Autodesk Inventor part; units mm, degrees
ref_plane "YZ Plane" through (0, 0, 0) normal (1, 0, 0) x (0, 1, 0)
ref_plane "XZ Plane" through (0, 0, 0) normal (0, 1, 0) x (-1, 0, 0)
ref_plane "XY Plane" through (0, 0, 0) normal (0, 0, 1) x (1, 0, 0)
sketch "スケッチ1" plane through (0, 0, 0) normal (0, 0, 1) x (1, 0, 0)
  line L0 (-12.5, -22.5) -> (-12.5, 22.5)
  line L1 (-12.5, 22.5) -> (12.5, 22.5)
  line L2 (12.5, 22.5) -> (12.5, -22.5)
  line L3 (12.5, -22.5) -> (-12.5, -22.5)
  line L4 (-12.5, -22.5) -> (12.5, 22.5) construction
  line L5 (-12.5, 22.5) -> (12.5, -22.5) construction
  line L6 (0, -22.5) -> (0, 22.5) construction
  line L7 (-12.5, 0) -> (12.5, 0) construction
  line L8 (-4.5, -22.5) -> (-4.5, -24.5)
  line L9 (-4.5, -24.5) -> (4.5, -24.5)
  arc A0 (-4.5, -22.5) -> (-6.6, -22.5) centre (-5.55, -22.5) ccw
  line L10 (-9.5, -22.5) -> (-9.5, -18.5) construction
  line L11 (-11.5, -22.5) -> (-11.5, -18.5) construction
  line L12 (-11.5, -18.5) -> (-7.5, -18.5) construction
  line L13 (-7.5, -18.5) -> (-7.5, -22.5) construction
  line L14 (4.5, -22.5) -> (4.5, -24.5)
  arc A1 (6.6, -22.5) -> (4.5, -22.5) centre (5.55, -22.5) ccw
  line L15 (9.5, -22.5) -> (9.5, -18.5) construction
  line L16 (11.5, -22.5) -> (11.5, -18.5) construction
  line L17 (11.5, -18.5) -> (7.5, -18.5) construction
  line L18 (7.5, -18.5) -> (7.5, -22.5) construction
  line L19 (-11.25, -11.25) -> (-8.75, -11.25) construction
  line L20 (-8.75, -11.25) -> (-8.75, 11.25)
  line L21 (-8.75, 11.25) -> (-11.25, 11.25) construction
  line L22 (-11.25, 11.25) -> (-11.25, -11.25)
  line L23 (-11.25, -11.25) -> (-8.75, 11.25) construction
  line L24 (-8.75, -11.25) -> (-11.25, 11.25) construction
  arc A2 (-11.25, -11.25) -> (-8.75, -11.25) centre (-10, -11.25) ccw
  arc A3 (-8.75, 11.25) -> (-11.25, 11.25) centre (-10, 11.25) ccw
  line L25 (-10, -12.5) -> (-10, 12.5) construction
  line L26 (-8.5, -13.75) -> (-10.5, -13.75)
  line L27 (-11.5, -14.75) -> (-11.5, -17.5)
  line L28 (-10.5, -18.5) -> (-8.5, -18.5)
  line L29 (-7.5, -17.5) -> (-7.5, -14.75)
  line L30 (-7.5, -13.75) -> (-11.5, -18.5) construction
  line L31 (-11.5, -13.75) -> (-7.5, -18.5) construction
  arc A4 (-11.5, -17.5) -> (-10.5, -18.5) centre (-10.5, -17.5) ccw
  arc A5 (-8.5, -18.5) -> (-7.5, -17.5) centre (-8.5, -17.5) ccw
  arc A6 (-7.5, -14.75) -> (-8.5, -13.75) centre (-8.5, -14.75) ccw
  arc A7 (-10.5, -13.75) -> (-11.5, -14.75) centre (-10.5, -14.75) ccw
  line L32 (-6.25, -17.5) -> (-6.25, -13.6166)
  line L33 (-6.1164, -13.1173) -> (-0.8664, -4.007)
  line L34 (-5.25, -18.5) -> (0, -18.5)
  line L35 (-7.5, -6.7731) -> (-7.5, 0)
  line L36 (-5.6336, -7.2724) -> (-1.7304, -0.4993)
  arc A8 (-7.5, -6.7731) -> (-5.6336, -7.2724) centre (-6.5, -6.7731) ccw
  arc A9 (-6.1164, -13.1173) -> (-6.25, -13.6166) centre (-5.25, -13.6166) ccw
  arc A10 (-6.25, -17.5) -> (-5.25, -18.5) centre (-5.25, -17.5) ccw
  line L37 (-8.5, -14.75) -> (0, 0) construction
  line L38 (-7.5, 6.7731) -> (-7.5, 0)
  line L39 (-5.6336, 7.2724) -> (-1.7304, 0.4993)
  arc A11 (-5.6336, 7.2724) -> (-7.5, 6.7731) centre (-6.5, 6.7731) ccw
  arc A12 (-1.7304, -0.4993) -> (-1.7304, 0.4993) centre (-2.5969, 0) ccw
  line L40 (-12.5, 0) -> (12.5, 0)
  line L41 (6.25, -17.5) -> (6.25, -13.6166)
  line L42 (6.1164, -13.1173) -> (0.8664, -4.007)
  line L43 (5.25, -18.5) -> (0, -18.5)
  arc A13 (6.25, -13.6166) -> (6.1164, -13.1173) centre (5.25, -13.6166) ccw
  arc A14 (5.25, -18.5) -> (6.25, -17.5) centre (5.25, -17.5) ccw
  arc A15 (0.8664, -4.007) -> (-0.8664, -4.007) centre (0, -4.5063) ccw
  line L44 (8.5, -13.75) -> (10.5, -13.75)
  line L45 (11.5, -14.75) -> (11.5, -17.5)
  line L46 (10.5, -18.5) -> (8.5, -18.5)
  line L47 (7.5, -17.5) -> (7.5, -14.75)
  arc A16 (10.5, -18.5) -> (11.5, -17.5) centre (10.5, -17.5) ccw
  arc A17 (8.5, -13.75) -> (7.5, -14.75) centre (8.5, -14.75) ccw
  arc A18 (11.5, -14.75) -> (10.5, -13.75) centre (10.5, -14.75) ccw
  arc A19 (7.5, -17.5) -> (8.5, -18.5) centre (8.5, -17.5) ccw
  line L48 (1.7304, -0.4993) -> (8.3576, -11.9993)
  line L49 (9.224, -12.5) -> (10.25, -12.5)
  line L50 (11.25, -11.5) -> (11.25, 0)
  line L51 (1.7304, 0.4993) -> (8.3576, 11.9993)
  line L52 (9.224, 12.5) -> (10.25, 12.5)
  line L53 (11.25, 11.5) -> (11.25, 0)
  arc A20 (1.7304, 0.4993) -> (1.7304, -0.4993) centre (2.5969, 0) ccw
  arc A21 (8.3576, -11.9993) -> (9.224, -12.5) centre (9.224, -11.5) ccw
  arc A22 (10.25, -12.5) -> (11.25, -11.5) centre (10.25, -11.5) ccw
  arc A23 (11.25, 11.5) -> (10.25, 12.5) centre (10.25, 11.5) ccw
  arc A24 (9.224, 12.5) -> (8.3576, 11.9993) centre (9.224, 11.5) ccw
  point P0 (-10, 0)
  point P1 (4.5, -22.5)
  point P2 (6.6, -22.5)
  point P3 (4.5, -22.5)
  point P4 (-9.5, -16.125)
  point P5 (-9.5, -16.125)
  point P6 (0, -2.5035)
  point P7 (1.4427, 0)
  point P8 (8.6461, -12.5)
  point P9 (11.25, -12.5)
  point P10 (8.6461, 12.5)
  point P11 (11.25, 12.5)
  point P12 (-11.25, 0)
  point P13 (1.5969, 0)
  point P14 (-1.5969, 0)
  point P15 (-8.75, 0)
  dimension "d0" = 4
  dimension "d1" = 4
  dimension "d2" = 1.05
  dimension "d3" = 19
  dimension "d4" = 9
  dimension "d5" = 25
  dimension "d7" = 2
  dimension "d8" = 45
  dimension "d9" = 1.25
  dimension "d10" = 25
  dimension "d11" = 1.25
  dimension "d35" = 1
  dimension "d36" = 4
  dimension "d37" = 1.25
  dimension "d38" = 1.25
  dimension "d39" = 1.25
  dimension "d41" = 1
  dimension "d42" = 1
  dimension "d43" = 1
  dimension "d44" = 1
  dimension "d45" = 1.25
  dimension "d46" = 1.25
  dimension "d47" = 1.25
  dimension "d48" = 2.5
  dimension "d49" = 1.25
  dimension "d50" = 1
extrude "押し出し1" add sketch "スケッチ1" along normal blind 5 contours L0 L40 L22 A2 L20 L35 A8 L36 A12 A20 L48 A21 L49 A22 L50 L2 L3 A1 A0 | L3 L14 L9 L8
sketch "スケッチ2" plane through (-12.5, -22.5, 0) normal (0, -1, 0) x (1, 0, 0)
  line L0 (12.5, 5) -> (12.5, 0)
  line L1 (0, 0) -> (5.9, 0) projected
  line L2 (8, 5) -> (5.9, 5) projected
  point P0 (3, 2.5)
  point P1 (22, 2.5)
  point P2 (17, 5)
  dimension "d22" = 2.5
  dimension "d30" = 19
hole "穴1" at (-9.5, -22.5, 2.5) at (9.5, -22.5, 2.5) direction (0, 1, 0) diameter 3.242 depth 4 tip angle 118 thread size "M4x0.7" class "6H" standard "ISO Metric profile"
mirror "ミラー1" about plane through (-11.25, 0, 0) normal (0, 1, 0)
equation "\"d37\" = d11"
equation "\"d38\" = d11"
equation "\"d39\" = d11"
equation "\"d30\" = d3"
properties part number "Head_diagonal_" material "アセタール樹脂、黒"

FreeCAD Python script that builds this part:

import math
import FreeCAD as App
import Part
import Sketcher
from FreeCAD import Vector

doc = App.newDocument("Part")
body = doc.addObject("PartDesign::Body", "Body")

# Sketch on XY plane
sketch1 = body.newObject("Sketcher::SketchObject", "Sketch")
sketch1.AttachmentSupport = (doc.getObject("XY_Plane"), [""])
sketch1.MapMode = "FlatFace"
sketch1.addGeometry(Part.LineSegment(Vector(-12.5, 0, 0), Vector(-12.5, -22.5, 0)), False)
sketch1.addGeometry(Part.LineSegment(Vector(-12.5, -22.5, 0), Vector(-6.6, -22.5, 0)), False)
sketch1.addGeometry(Part.ArcOfCircle(Part.Circle(Vector(-5.5, -22.5, 0), Vector(0, 0, 1), 1), math.radians(0), math.radians(180)), False)
sketch1.addGeometry(Part.LineSegment(Vector(-4.5, -22.5, 0), Vector(-4.5, -24.5, 0)), False)
sketch1.addGeometry(Part.LineSegment(Vector(-4.5, -24.5, 0), Vector(4.5, -24.5, 0)), False)
sketch1.addGeometry(Part.LineSegment(Vector(4.5, -24.5, 0), Vector(4.5, -22.5, 0)), False)
sketch1.addGeometry(Part.ArcOfCircle(Part.Circle(Vector(5.5, -22.5, 0), Vector(0, 0, 1), 1), math.radians(0), math.radians(180)), False)
sketch1.addGeometry(Part.LineSegment(Vector(6.6, -22.5, 0), Vector(12.5, -22.5, 0)), False)
sketch1.addGeometry(Part.LineSegment(Vector(12.5, -22.5, 0), Vector(12.5, 0, 0)), False)
sketch1.addGeometry(Part.LineSegment(Vector(12.5, 0, 0), Vector(11.2, 0, 0)), False)
sketch1.addGeometry(Part.LineSegment(Vector(11.2, 0, 0), Vector(11.2, -11.5, 0)), False)
sketch1.addGeometry(Part.ArcOfCircle(Part.Circle(Vector(10.2, -11.5, 0), Vector(0, 0, 1), 1), math.radians(-90), math.radians(0)), False)
sketch1.addGeometry(Part.LineSegment(Vector(10.2, -12.5, 0), Vector(9.2, -12.5, 0)), False)
sketch1.addGeometry(Part.ArcOfCircle(Part.Circle(Vector(9.2, -11.5, 0), Vector(0, 0, 1), 1), math.radians(-150), math.radians(-90)), False)
sketch1.addGeometry(Part.LineSegment(Vector(8.4, -12, 0), Vector(1.7, -0.5, 0)), False)
sketch1.addGeometry(Part.ArcOfCircle(Part.Circle(Vector(2.6, 0, 0), Vector(0, 0, 1), 1), math.radians(180), math.radians(210)), False)
sketch1.addGeometry(Part.LineSegment(Vector(1.6, 0, 0), Vector(-1.6, 0, 0)), False)
sketch1.addGeometry(Part.ArcOfCircle(Part.Circle(Vector(-2.6, 0, 0), Vector(0, 0, 1), 1), math.radians(-30), math.radians(0)), False)
sketch1.addGeometry(Part.LineSegment(Vector(-1.7, -0.5, 0), Vector(-5.6, -7.3, 0)), False)
sketch1.addGeometry(Part.ArcOfCircle(Part.Circle(Vector(-6.5, -6.8, 0), Vector(0, 0, 1), 1), math.radians(180), math.radians(330)), False)
sketch1.addGeometry(Part.LineSegment(Vector(-7.5, -6.8, 0), Vector(-7.5, 0, 0)), False)
sketch1.addGeometry(Part.LineSegment(Vector(-7.5, 0, 0), Vector(-8.8, 0, 0)), False)
sketch1.addGeometry(Part.LineSegment(Vector(-8.8, 0, 0), Vector(-8.8, -11.2, 0)), False)
sketch1.addGeometry(Part.ArcOfCircle(Part.Circle(Vector(-10, -11.2, 0), Vector(0, 0, 1), 1.2), math.radians(180), math.radians(360)), False)
sketch1.addGeometry(Part.LineSegment(Vector(-11.2, -11.2, 0), Vector(-11.2, 0, 0)), False)
sketch1.addGeometry(Part.LineSegment(Vector(-11.2, 0, 0), Vector(-12.5, 0, 0)), False)
sketch1.addGeometry(Part.LineSegment(Vector(-10.5, -13.8, 0), Vector(-8.5, -13.8, 0)), False)
sketch1.addGeometry(Part.ArcOfCircle(Part.Circle(Vector(-8.5, -14.8, 0), Vector(0, 0, 1), 1), math.radians(0), math.radians(90)), False)
sketch1.addGeometry(Part.LineSegment(Vector(-7.5, -14.8, 0), Vector(-7.5, -17.5, 0)), False)
sketch1.addGeometry(Part.ArcOfCircle(Part.Circle(Vector(-8.5, -17.5, 0), Vector(0, 0, 1), 1), math.radians(-90), math.radians(0)), False)
sketch1.addGeometry(Part.LineSegment(Vector(-8.5, -18.5, 0), Vector(-10.5, -18.5, 0)), False)
sketch1.addGeometry(Part.ArcOfCircle(Part.Circle(Vector(-10.5, -17.5, 0), Vector(0, 0, 1), 1), math.radians(180), math.radians(270)), False)
sketch1.addGeometry(Part.LineSegment(Vector(-11.5, -17.5, 0), Vector(-11.5, -14.8, 0)), False)
sketch1.addGeometry(Part.ArcOfCircle(Part.Circle(Vector(-10.5, -14.8, 0), Vector(0, 0, 1), 1), math.radians(90), math.radians(180)), False)
sketch1.addGeometry(Part.ArcOfCircle(Part.Circle(Vector(8.5, -14.8, 0), Vector(0, 0, 1), 1), math.radians(90), math.radians(180)), False)
sketch1.addGeometry(Part.LineSegment(Vector(8.5, -13.8, 0), Vector(10.5, -13.8, 0)), False)
sketch1.addGeometry(Part.ArcOfCircle(Part.Circle(Vector(10.5, -14.8, 0), Vector(0, 0, 1), 1), math.radians(0), math.radians(90)), False)
sketch1.addGeometry(Part.LineSegment(Vector(11.5, -14.8, 0), Vector(11.5, -17.5, 0)), False)
sketch1.addGeometry(Part.ArcOfCircle(Part.Circle(Vector(10.5, -17.5, 0), Vector(0, 0, 1), 1), math.radians(-90), math.radians(0)), False)
sketch1.addGeometry(Part.LineSegment(Vector(10.5, -18.5, 0), Vector(8.5, -18.5, 0)), False)
sketch1.addGeometry(Part.ArcOfCircle(Part.Circle(Vector(8.5, -17.5, 0), Vector(0, 0, 1), 1), math.radians(180), math.radians(270)), False)
sketch1.addGeometry(Part.LineSegment(Vector(7.5, -17.5, 0), Vector(7.5, -14.8, 0)), False)
sketch1.addGeometry(Part.ArcOfCircle(Part.Circle(Vector(-5.2, -17.5, 0), Vector(0, 0, 1), 1), math.radians(180), math.radians(270)), False)
sketch1.addGeometry(Part.LineSegment(Vector(-6.2, -17.5, 0), Vector(-6.2, -13.6, 0)), False)
sketch1.addGeometry(Part.ArcOfCircle(Part.Circle(Vector(-5.2, -13.6, 0), Vector(0, 0, 1), 1), math.radians(150), math.radians(180)), False)
sketch1.addGeometry(Part.LineSegment(Vector(-6.1, -13.1, 0), Vector(-0.9, -4, 0)), False)
sketch1.addGeometry(Part.ArcOfCircle(Part.Circle(Vector(0, -4.5, 0), Vector(0, 0, 1), 1), math.radians(30), math.radians(150)), False)
sketch1.addGeometry(Part.LineSegment(Vector(0.9, -4, 0), Vector(6.1, -13.1, 0)), False)
sketch1.addGeometry(Part.ArcOfCircle(Part.Circle(Vector(5.2, -13.6, 0), Vector(0, 0, 1), 1), math.radians(0), math.radians(30)), False)
sketch1.addGeometry(Part.LineSegment(Vector(6.2, -13.6, 0), Vector(6.2, -17.5, 0)), False)
sketch1.addGeometry(Part.ArcOfCircle(Part.Circle(Vector(5.2, -17.5, 0), Vector(0, 0, 1), 1), math.radians(-90), math.radians(0)), False)
sketch1.addGeometry(Part.LineSegment(Vector(5.2, -18.5, 0), Vector(-5.2, -18.5, 0)), False)
sketch1.addConstraint(Sketcher.Constraint("Coincident", 0, 2, 1, 1))
sketch1.addConstraint(Sketcher.Constraint("Coincident", 1, 2, 2, 2))
sketch1.addConstraint(Sketcher.Constraint("Tangent", 2, 1, 3, 1))
sketch1.addConstraint(Sketcher.Constraint("Coincident", 3, 2, 4, 1))
sketch1.addConstraint(Sketcher.Constraint("Coincident", 4, 2, 5, 1))
sketch1.addConstraint(Sketcher.Constraint("Tangent", 5, 2, 6, 2))
sketch1.addConstraint(Sketcher.Constraint("Coincident", 6, 1, 7, 1))
sketch1.addConstraint(Sketcher.Constraint("Coincident", 7, 2, 8, 1))
sketch1.addConstraint(Sketcher.Constraint("Coincident", 8, 2, 9, 1))
sketch1.addConstraint(Sketcher.Constraint("Coincident", 9, 2, 10, 1))
sketch1.addConstraint(Sketcher.Constraint("Tangent", 10, 2, 11, 2))
sketch1.addConstraint(Sketcher.Constraint("Tangent", 11, 1, 12, 1))
sketch1.addConstraint(Sketcher.Constraint("Tangent", 12, 2, 13, 2))
sketch1.addConstraint(Sketcher.Constraint("Tangent", 13, 1, 14, 1))
sketch1.addConstraint(Sketcher.Constraint("Tangent", 14, 2, 15, 2))
sketch1.addConstraint(Sketcher.Constraint("Coincident", 15, 1, 16, 1))
sketch1.addConstraint(Sketcher.Constraint("Coincident", 16, 2, 17, 2))
sketch1.addConstraint(Sketcher.Constraint("Tangent", 17, 1, 18, 1))
sketch1.addConstraint(Sketcher.Constraint("Tangent", 18, 2, 19, 2))
sketch1.addConstraint(Sketcher.Constraint("Tangent", 19, 1, 20, 1))
sketch1.addConstraint(Sketcher.Constraint("Coincident", 20, 2, 21, 1))
sketch1.addConstraint(Sketcher.Constraint("Coincident", 21, 2, 22, 1))
sketch1.addConstraint(Sketcher.Constraint("Tangent", 22, 2, 23, 2))
sketch1.addConstraint(Sketcher.Constraint("Tangent", 23, 1, 24, 1))
sketch1.addConstraint(Sketcher.Constraint("Coincident", 24, 2, 25, 1))
sketch1.addConstraint(Sketcher.Constraint("Coincident", 25, 2, 0, 1))
sketch1.addConstraint(Sketcher.Constraint("Tangent", 26, 2, 27, 2))
sketch1.addConstraint(Sketcher.Constraint("Tangent", 27, 1, 28, 1))
sketch1.addConstraint(Sketcher.Constraint("Tangent", 28, 2, 29, 2))
sketch1.addConstraint(Sketcher.Constraint("Tangent", 29, 1, 30, 1))
sketch1.addConstraint(Sketcher.Constraint("Tangent", 30, 2, 31, 2))
sketch1.addConstraint(Sketcher.Constraint("Tangent", 31, 1, 32, 1))
sketch1.addConstraint(Sketcher.Constraint("Tangent", 32, 2, 33, 2))
sketch1.addConstraint(Sketcher.Constraint("Tangent", 33, 1, 26, 1))
sketch1.addConstraint(Sketcher.Constraint("Tangent", 34, 1, 35, 1))
sketch1.addConstraint(Sketcher.Constraint("Tangent", 35, 2, 36, 2))
sketch1.addConstraint(Sketcher.Constraint("Tangent", 36, 1, 37, 1))
sketch1.addConstraint(Sketcher.Constraint("Tangent", 37, 2, 38, 2))
sketch1.addConstraint(Sketcher.Constraint("Tangent", 38, 1, 39, 1))
sketch1.addConstraint(Sketcher.Constraint("Tangent", 39, 2, 40, 2))
sketch1.addConstraint(Sketcher.Constraint("Tangent", 40, 1, 41, 1))
sketch1.addConstraint(Sketcher.Constraint("Tangent", 41, 2, 34, 2))
sketch1.addConstraint(Sketcher.Constraint("Tangent", 42, 1, 43, 1))
sketch1.addConstraint(Sketcher.Constraint("Tangent", 43, 2, 44, 2))
sketch1.addConstraint(Sketcher.Constraint("Tangent", 44, 1, 45, 1))
sketch1.addConstraint(Sketcher.Constraint("Tangent", 45, 2, 46, 2))
sketch1.addConstraint(Sketcher.Constraint("Tangent", 46, 1, 47, 1))
sketch1.addConstraint(Sketcher.Constraint("Tangent", 47, 2, 48, 2))
sketch1.addConstraint(Sketcher.Constraint("Tangent", 48, 1, 49, 1))
sketch1.addConstraint(Sketcher.Constraint("Tangent", 49, 2, 50, 2))
sketch1.addConstraint(Sketcher.Constraint("Tangent", 50, 1, 51, 1))
sketch1.addConstraint(Sketcher.Constraint("Tangent", 51, 2, 42, 2))
sketch1.addConstraint(Sketcher.Constraint("Vertical", 0))
sketch1.addConstraint(Sketcher.Constraint("Horizontal", 1))
sketch1.addConstraint(Sketcher.Constraint("Vertical", 3))
sketch1.addConstraint(Sketcher.Constraint("Horizontal", 4))
sketch1.addConstraint(Sketcher.Constraint("Vertical", 5))
sketch1.addConstraint(Sketcher.Constraint("Horizontal", 7))
sketch1.addConstraint(Sketcher.Constraint("Vertical", 8))
sketch1.addConstraint(Sketcher.Constraint("Horizontal", 9))
sketch1.addConstraint(Sketcher.Constraint("Vertical", 10))
sketch1.addConstraint(Sketcher.Constraint("Horizontal", 12))
sketch1.addConstraint(Sketcher.Constraint("Horizontal", 16))
sketch1.addConstraint(Sketcher.Constraint("Vertical", 20))
sketch1.addConstraint(Sketcher.Constraint("Horizontal", 21))
sketch1.addConstraint(Sketcher.Constraint("Vertical", 22))
sketch1.addConstraint(Sketcher.Constraint("Vertical", 24))
sketch1.addConstraint(Sketcher.Constraint("Horizontal", 25))
sketch1.addConstraint(Sketcher.Constraint("Horizontal", 26))
sketch1.addConstraint(Sketcher.Constraint("Vertical", 28))
sketch1.addConstraint(Sketcher.Constraint("Horizontal", 30))
sketch1.addConstraint(Sketcher.Constraint("Vertical", 32))
sketch1.addConstraint(Sketcher.Constraint("Horizontal", 35))
sketch1.addConstraint(Sketcher.Constraint("Vertical", 37))
sketch1.addConstraint(Sketcher.Constraint("Horizontal", 39))
sketch1.addConstraint(Sketcher.Constraint("Vertical", 41))
sketch1.addConstraint(Sketcher.Constraint("Vertical", 43))
sketch1.addConstraint(Sketcher.Constraint("Vertical", 49))
sketch1.addConstraint(Sketcher.Constraint("Horizontal", 51))
sketch1.addConstraint(Sketcher.Constraint("Equal", 2, 6))
sketch1.addConstraint(Sketcher.Constraint("Equal", 11, 13))
sketch1.addConstraint(Sketcher.Constraint("Equal", 13, 15))
sketch1.addConstraint(Sketcher.Constraint("Equal", 15, 17))
sketch1.addConstraint(Sketcher.Constraint("Equal", 17, 19))
sketch1.addConstraint(Sketcher.Constraint("Equal", 19, 27))
sketch1.addConstraint(Sketcher.Constraint("Equal", 27, 29))
sketch1.addConstraint(Sketcher.Constraint("Equal", 29, 31))
sketch1.addConstraint(Sketcher.Constraint("Equal", 31, 33))
sketch1.addConstraint(Sketcher.Constraint("Equal", 33, 34))
sketch1.addConstraint(Sketcher.Constraint("Equal", 34, 36))
sketch1.addConstraint(Sketcher.Constraint("Equal", 36, 38))
sketch1.addConstraint(Sketcher.Constraint("Equal", 38, 40))
sketch1.addConstraint(Sketcher.Constraint("Equal", 40, 42))
sketch1.addConstraint(Sketcher.Constraint("Equal", 42, 44))
sketch1.addConstraint(Sketcher.Constraint("Equal", 44, 46))
sketch1.addConstraint(Sketcher.Constraint("Equal", 46, 48))
sketch1.addConstraint(Sketcher.Constraint("Equal", 48, 50))
sketch1.addConstraint(Sketcher.Constraint("Symmetric", 15, 3, 17, 3, -1, 1))
sketch1.addConstraint(Sketcher.Constraint("Symmetric", 9, 2, 24, 2, -1, 1))
sketch1.addConstraint(Sketcher.Constraint("Symmetric", 2, 3, 6, 3, -2))
sketch1.addConstraint(Sketcher.Constraint("Symmetric", 27, 3, 34, 3, -2))
sketch1.addConstraint(Sketcher.Constraint("Symmetric", 31, 3, 38, 3, -2))
sketch1.addConstraint(Sketcher.Constraint("Symmetric", 44, 3, 48, 3, -2))
sketch1.addConstraint(Sketcher.Constraint("Symmetric", 0, 2, 7, 2, -2))
sketch1.addConstraint(Sketcher.Constraint("Symmetric", 14, 2, 17, 1, -2))
sketch1.addConstraint(Sketcher.Constraint("PointOnObject", 46, 3, -2))
sketch1.addConstraint(Sketcher.Constraint("PointOnObject", 8, 2, -1))
sketch1.addConstraint(Sketcher.Constraint("PointOnObject", 15, 1, -1))
sketch1.addConstraint(Sketcher.Constraint("PointOnObject", 20, 2, -1))
sketch1.addConstraint(Sketcher.Constraint("Parallel", 18, 45))
sketch1.addConstraint(Sketcher.Constraint("Horizontal", 40, 3, 42, 3))
sketch1.addConstraint(Sketcher.Constraint("Horizontal", 6, 3, 0, 2))
sketch1.addConstraint(Sketcher.Constraint("Vertical", 20, 2, 27, 1))
sketch1.addConstraint(Sketcher.Constraint("Equal", 9, 21))
sketch1.addConstraint(Sketcher.Constraint("Equal", 39, 3))
sketch1.addConstraint(Sketcher.Constraint("Radius", 11, 1.0))
sketch1.addConstraint(Sketcher.Constraint("DistanceX", 4, 1, 4, 2, 9.0))
sketch1.addConstraint(Sketcher.Constraint("DistanceX", 26, 1, 26, 2, 2.0))
sketch1.addConstraint(Sketcher.Constraint("Radius", 2, 1.05))
sketch1.addConstraint(Sketcher.Constraint("Radius", 23, 1.25))
sketch1.addConstraint(Sketcher.Constraint("DistanceX", 9, 2, 9, 1, 1.25))
sketch1.addConstraint(Sketcher.Constraint("DistanceX", 1, 1, 1, 2, 5.9))
sketch1.addConstraint(Sketcher.Constraint("DistanceX", 51, 2, 51, 1, 10.5))
sketch1.addConstraint(Sketcher.Constraint("DistanceY", 0, 2, 0, 1, 22.5))
sketch1.addConstraint(Sketcher.Constraint("DistanceY", 10, 2, 10, 1, 11.5))
sketch1.addConstraint(Sketcher.Constraint("DistanceY", 22, 2, 22, 1, 11.25))
sketch1.addConstraint(Sketcher.Constraint("DistanceY", 28, 2, 28, 1, 2.75))
sketch1.addConstraint(Sketcher.Constraint("DistanceY", 29, 3, -1, 1, 17.5))
sketch1.addConstraint(Sketcher.Constraint("DistanceX", 12, 2, 12, 1, 1.026))
sketch1.addConstraint(Sketcher.Constraint("DistanceY", 20, 1, 20, 2, 6.773))
sketch1.addConstraint(Sketcher.Constraint("DistanceY", 43, 1, 43, 2, 3.8834))
pad1 = body.newObject("PartDesign::Pad", "Pad")
pad1.Profile = sketch1
pad1.Length = 5

# Sketch on XZ plane
sketch2 = body.newObject("Sketcher::SketchObject", "Sketch001")
sketch2.AttachmentSupport = (doc.getObject("XZ_Plane"), [""])
sketch2.MapMode = "FlatFace"
sketch2.AttachmentOffset = App.Placement(Vector(0, 0, 22.5), App.Rotation())
sketch2.addGeometry(Part.Circle(Vector(-9.5, 2.5, 0), Vector(0, 0, 1), 1.6), False)
sketch2.addGeometry(Part.Circle(Vector(9.5, 2.5, 0), Vector(0, 0, 1), 1.6), False)
sketch2.addConstraint(Sketcher.Constraint("Equal", 0, 1))
sketch2.addConstraint(Sketcher.Constraint("Symmetric", 0, 3, 1, 3, -2))
sketch2.addConstraint(Sketcher.Constraint("Diameter", 0, 3.242))
sketch2.addConstraint(Sketcher.Constraint("DistanceX", 0, 3, 1, 3, 19.0))
sketch2.addConstraint(Sketcher.Constraint("DistanceY", -1, 1, 0, 3, 2.5))
doc.recompute()
hole = body.newObject("PartDesign::Hole", "Hole")
hole.Profile = sketch2
hole.ThreadType = "None"
hole.Diameter = 3.242
hole.DepthType = "Dimension"
hole.Depth = 4
hole.DrillPoint = "Angled"
hole.DrillPointAngle = 118
doc.recompute()

mirrored = body.newObject("PartDesign::Mirrored", "Mirrored")
mirrored.TransformMode = "Transform body"
mirrored.MirrorPlane = (doc.getObject("XZ_Plane"), [""])
body.Tip = mirrored

doc.recompute()
